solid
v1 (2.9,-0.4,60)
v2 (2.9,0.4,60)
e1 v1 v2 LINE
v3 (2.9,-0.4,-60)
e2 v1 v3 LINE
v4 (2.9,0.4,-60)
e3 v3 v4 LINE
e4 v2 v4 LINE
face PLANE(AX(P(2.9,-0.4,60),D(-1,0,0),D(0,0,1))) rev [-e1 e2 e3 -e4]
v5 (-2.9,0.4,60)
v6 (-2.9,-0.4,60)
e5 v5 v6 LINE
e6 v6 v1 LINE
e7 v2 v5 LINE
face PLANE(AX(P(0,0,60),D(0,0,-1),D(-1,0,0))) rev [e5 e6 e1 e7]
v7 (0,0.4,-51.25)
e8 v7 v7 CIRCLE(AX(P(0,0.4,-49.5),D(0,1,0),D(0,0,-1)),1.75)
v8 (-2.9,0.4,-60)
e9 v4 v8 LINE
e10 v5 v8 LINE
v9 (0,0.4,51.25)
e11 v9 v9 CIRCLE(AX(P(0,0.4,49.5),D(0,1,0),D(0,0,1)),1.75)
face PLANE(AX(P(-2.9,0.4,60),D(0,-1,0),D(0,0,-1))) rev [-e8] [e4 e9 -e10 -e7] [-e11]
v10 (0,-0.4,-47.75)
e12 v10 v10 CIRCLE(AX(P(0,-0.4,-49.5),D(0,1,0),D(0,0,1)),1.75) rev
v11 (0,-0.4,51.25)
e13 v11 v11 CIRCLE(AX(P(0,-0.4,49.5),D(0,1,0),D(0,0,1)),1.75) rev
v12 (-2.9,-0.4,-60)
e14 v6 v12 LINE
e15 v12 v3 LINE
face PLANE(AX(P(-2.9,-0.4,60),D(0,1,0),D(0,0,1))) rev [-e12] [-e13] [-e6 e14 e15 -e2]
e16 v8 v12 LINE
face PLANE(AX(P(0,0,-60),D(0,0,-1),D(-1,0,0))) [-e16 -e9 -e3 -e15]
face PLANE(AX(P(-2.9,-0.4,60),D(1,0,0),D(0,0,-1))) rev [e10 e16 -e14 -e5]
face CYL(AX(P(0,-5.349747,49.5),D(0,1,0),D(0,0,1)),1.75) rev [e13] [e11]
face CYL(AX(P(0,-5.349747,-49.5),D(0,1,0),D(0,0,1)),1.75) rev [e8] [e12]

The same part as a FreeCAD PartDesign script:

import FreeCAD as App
import Part
import Sketcher
Q = App.Units.Quantity

doc = App.newDocument("Part")
body = doc.addObject("PartDesign::Body", "Body")

sketch1 = body.newObject("Sketcher::SketchObject", "Sketch")
sketch1.AttachmentSupport = (doc.getObject("XY_Plane"), [""])
sketch1.MapMode = "FlatFace"
sketch1.addGeometry([
    Part.LineSegment(App.Vector(-2.9, 0.4, 0), App.Vector(-2.9, -0.4, 0)),
    Part.LineSegment(App.Vector(-2.9, -0.4, 0), App.Vector(2.9, -0.4, 0)),
    Part.LineSegment(App.Vector(2.9, -0.4, 0), App.Vector(2.9, 0.4, 0)),
    Part.LineSegment(App.Vector(2.9, 0.4, 0), App.Vector(-2.9, 0.4, 0)),
], False)
sketch1.addConstraint([
    Sketcher.Constraint("Coincident", 0, 2, 1, 1),
    Sketcher.Constraint("Coincident", 1, 2, 2, 1),
    Sketcher.Constraint("Coincident", 2, 2, 3, 1),
    Sketcher.Constraint("Coincident", 3, 2, 0, 1),
    Sketcher.Constraint("Vertical", 0),
    Sketcher.Constraint("Horizontal", 1),
    Sketcher.Constraint("Vertical", 2),
    Sketcher.Constraint("Horizontal", 3),
    Sketcher.Constraint("Symmetric", 0, 2, 2, 2, -1, 1),
    Sketcher.Constraint("DistanceX", 1, 1, 1, 2, Q("5.8 mm")),
    Sketcher.Constraint("DistanceY", 0, 2, 0, 1, Q("0.8 mm")),
])
pad1 = body.newObject("PartDesign::Pad", "Pad")
pad1.Profile = sketch1
pad1.Length = 120
pad1.Midplane = True

sketch2 = body.newObject("Sketcher::SketchObject", "Sketch001")
sketch2.AttachmentSupport = (doc.getObject("XZ_Plane"), [""])
sketch2.MapMode = "FlatFace"
sketch2.AttachmentOffset = App.Placement(App.Vector(0, 0, -0.4), App.Rotation())
sketch2.addGeometry([
    Part.Circle(App.Vector(0, 49.5, 0), App.Vector(0, 0, 1), 1.75),
    Part.Circle(App.Vector(0, -49.5, 0), App.Vector(0, 0, 1), 1.75),
], False)
sketch2.addConstraint([
    Sketcher.Constraint("Equal", 0, 1),
    Sketcher.Constraint("Symmetric", 0, 3, 1, 3, -1, 1),
    Sketcher.Constraint("PointOnObject", 0, 3, -2),
    Sketcher.Constraint("Diameter", 0, Q("3.5 mm")),
    Sketcher.Constraint("DistanceY", 1, 3, 0, 3, Q("99 mm")),
])
pocket1 = body.newObject("PartDesign::Pocket", "Pocket")
pocket1.Profile = sketch2
pocket1.Length = 0.8
pocket1.Reversed = True

doc.recompute()
